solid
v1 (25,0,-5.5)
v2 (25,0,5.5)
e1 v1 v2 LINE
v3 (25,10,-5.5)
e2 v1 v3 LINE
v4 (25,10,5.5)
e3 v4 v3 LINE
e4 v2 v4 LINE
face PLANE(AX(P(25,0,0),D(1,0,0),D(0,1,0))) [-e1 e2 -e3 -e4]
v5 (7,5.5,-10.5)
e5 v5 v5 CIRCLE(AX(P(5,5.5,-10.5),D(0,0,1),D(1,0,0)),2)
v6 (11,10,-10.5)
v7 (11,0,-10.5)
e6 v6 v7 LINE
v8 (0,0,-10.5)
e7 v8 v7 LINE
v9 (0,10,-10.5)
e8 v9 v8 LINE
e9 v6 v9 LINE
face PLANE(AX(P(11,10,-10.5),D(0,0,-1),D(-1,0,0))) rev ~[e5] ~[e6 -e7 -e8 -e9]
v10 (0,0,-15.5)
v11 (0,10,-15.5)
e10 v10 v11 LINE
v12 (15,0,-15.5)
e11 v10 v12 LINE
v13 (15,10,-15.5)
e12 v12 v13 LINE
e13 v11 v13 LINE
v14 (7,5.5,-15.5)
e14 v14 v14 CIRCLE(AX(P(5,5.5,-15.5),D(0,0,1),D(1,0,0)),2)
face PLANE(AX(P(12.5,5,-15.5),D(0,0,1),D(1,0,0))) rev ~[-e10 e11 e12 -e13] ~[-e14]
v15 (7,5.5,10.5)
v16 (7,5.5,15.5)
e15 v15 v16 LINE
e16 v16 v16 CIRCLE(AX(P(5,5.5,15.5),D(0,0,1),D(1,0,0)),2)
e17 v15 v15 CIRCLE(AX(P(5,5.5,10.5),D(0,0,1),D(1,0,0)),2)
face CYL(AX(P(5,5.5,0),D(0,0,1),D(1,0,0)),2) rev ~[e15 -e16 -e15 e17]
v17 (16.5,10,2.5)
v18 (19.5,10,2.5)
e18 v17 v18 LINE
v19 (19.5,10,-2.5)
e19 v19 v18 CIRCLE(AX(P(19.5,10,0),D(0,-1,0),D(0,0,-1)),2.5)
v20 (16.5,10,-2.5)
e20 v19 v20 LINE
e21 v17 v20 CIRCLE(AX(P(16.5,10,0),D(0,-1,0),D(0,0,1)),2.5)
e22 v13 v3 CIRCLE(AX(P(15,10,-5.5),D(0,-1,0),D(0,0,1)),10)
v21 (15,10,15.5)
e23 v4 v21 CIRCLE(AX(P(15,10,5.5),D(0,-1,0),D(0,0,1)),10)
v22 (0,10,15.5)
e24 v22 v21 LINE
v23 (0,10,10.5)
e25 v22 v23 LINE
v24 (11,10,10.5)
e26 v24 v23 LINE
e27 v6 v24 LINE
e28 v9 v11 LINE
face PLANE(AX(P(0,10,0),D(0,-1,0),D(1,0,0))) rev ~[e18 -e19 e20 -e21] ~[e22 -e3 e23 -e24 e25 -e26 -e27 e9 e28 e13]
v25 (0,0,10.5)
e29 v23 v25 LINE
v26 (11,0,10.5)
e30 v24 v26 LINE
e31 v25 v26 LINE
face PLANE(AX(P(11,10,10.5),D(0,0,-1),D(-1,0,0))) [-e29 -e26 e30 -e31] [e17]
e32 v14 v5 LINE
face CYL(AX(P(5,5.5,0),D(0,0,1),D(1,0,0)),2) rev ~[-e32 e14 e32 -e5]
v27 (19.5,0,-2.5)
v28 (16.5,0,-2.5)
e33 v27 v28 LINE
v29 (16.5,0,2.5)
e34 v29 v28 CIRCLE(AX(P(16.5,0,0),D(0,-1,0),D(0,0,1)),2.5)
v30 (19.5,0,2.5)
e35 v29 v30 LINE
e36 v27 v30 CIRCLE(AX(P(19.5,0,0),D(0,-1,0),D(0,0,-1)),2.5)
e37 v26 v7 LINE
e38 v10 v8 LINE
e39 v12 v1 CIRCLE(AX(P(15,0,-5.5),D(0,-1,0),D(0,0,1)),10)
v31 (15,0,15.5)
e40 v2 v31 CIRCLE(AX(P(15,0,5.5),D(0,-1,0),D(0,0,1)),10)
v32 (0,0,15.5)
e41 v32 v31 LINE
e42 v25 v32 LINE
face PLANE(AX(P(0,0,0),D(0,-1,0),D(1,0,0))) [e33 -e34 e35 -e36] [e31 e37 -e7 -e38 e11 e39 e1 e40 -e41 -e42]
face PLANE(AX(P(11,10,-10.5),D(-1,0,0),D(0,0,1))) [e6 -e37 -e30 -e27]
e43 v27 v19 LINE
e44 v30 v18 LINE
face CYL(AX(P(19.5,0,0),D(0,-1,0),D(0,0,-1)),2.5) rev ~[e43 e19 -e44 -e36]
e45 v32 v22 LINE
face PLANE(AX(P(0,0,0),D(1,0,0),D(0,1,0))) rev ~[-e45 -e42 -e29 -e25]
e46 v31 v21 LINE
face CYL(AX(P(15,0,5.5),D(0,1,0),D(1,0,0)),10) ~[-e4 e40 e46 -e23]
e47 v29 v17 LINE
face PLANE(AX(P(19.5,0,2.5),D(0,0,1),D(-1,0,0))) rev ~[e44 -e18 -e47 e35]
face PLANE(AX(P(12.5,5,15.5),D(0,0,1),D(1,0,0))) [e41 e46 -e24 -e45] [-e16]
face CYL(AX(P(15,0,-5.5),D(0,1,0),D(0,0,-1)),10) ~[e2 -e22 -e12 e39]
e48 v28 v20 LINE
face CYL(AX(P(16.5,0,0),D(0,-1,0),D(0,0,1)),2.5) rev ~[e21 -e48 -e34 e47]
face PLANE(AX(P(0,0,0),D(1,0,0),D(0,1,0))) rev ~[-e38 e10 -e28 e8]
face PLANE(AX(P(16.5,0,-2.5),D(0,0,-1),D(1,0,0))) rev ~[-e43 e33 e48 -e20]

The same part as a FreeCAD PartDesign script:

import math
import FreeCAD as App
import Part
import Sketcher
from FreeCAD import Vector


def edges_at(feature, points):
    """Names of the edges that pass closest to the given points."""
    edges = feature.Shape.Edges
    near = lambda p: min(range(len(edges)), key=lambda i: edges[i].distToShape(Part.Vertex(*p))[0])
    return sorted({f"Edge{near(p) + 1}" for p in points})


def add_polygon(sketch, points):
    """Adds a closed chain of lines whose ends are joined by coincident constraints."""
    first, n = sketch.GeometryCount, len(points)
    for a, b in zip(points, points[1:] + points[:1]):
        sketch.addGeometry(Part.LineSegment(App.Vector(*a, 0), App.Vector(*b, 0)), False)
    for i in range(n):
        sketch.addConstraint(Sketcher.Constraint("Coincident", first + i, 2, first + (i + 1) % n, 1))

doc = App.newDocument("Part")
params = doc.addObject("Spreadsheet::Sheet", "Params")
for row, (alias, value) in enumerate([
    ("sketch1_width", "25 mm"),
    ("sketch1_height", "10 mm"),
    ("pad1_length", "31 mm"),
    ("sketch2_width", "11 mm"),
    ("sketch2_height", "21 mm"),
    ("sketch3_diameter", "5 mm"),
    ("fillet_radius", "10 mm"),
    ("sketch4_diameter", "4 mm"),
    ("pocket3_length", "32 mm"),
    ("sketch5_radius", "2.5 mm"),
    ("sketch5_width", "3 mm"),
    ("pocket4_length", "25 mm"),
], start=1):
    params.set(f"A{row}", alias)
    params.set(f"B{row}", "=" + value)
    params.setAlias(f"B{row}", alias)

body = doc.addObject("PartDesign::Body", "Body")

sketch1 = doc.addObject("Sketcher::SketchObject", "Sketch")
body.addObject(sketch1)
sketch1.AttachmentSupport = (doc.XY_Plane, [""])
sketch1.MapMode = "FlatFace"
add_polygon(sketch1, [(0, 10), (0, 0), (25, 0), (25, 10)])
sketch1.addConstraint(Sketcher.Constraint("Vertical", 0))
sketch1.addConstraint(Sketcher.Constraint("Horizontal", 1))
sketch1.addConstraint(Sketcher.Constraint("Vertical", 2))
sketch1.addConstraint(Sketcher.Constraint("Horizontal", 3))
sketch1.addConstraint(Sketcher.Constraint("Coincident", 0, 2, -1, 1))
sketch1.addConstraint(Sketcher.Constraint("DistanceX", 1, 1, 1, 2, 25.0))
sketch1.addConstraint(Sketcher.Constraint("DistanceY", 0, 2, 0, 1, 10.0))
sketch1.setExpression("Constraints[9]", "Params.sketch1_width")
sketch1.setExpression("Constraints[10]", "Params.sketch1_height")
pad1 = doc.addObject("PartDesign::Pad", "Pad")
body.addObject(pad1)
pad1.Profile = sketch1
pad1.setExpression("Length", "Params.pad1_length")
pad1.Midplane = True

sketch2 = doc.addObject("Sketcher::SketchObject", "Sketch001")
body.addObject(sketch2)
sketch2.AttachmentSupport = (doc.XZ_Plane, [""])
sketch2.MapMode = "FlatFace"
sketch2.AttachmentOffset = App.Placement(Vector(0, 0, -10), App.Rotation())
add_polygon(sketch2, [(11, 10), (11, -10), (0, -10), (0, 10)])
sketch2.addConstraint(Sketcher.Constraint("Vertical", 0))
sketch2.addConstraint(Sketcher.Constraint("Horizontal", 1))
sketch2.addConstraint(Sketcher.Constraint("Vertical", 2))
sketch2.addConstraint(Sketcher.Constraint("Horizontal", 3))
sketch2.addConstraint(Sketcher.Constraint("Symmetric", 1, 2, 2, 2, -1, 1))
sketch2.addConstraint(Sketcher.Constraint("DistanceX", 1, 2, 1, 1, 11.0))
sketch2.addConstraint(Sketcher.Constraint("DistanceY", 0, 2, 0, 1, 21.0))
sketch2.setExpression("Constraints[9]", "Params.sketch2_width")
sketch2.setExpression("Constraints[10]", "Params.sketch2_height")
pocket1 = doc.addObject("PartDesign::Pocket", "Pocket")
body.addObject(pocket1)
pocket1.Profile = sketch2
pocket1.Type = "ThroughAll"
pocket1.Reversed = True

sketch3 = doc.addObject("Sketcher::SketchObject", "Sketch002")
body.addObject(sketch3)
sketch3.AttachmentSupport = (doc.XZ_Plane, [""])
sketch3.MapMode = "FlatFace"
sketch3.AttachmentOffset = App.Placement(Vector(0, 0, -10), App.Rotation())
sketch3.addGeometry(Part.Circle(Vector(18, 0, 0), Vector(0, 0, 1), 2.5), False)
sketch3.addConstraint(Sketcher.Constraint("PointOnObject", 0, 3, -1))
sketch3.addConstraint(Sketcher.Constraint("Diameter", 0, 5.0))
sketch3.addConstraint(Sketcher.Constraint("DistanceX", -1, 1, 0, 3, 18.0))
sketch3.setExpression("Constraints[1]", "Params.sketch3_diameter")
pocket2 = doc.addObject("PartDesign::Pocket", "Pocket001")
body.addObject(pocket2)
pocket2.Profile = sketch3
pocket2.Type = "ThroughAll"
pocket2.Reversed = True
doc.recompute()

fillet = doc.addObject("PartDesign::Fillet", "Fillet")
body.addObject(fillet)
fillet.Base = (pocket2, edges_at(pocket2, [(25, 5, -15.5), (25, 5, 15.5)]))
fillet.setExpression("Radius", "Params.fillet_radius")

sketch4 = doc.addObject("Sketcher::SketchObject", "Sketch003")
body.addObject(sketch4)
sketch4.AttachmentSupport = (doc.XY_Plane, [""])
sketch4.MapMode = "FlatFace"
sketch4.addGeometry(Part.Circle(Vector(5, 5.5, 0), Vector(0, 0, 1), 2), False)
sketch4.addConstraint(Sketcher.Constraint("Diameter", 0, 4.0))
sketch4.addConstraint(Sketcher.Constraint("DistanceX", -1, 1, 0, 3, 5.0))
sketch4.addConstraint(Sketcher.Constraint("DistanceY", -1, 1, 0, 3, 5.5))
sketch4.setExpression("Constraints[0]", "Params.sketch4_diameter")
pocket3 = doc.addObject("PartDesign::Pocket", "Pocket002")
body.addObject(pocket3)
pocket3.Profile = sketch4
pocket3.setExpression("Length", "Params.pocket3_length")
pocket3.Midplane = True

sketch5 = doc.addObject("Sketcher::SketchObject", "Sketch004")
body.addObject(sketch5)
sketch5.AttachmentSupport = (doc.XZ_Plane, [""])
sketch5.MapMode = "FlatFace"
sketch5.addGeometry(Part.LineSegment(Vector(19.5, 2.5, 0), Vector(16.5, 2.5, 0)), False)
sketch5.addGeometry(Part.ArcOfCircle(Part.Circle(Vector(16.5, 0, 0), Vector(0, 0, 1), 2.5), math.radians(90), math.radians(270)), False)
sketch5.addGeometry(Part.LineSegment(Vector(16.5, -2.5, 0), Vector(19.5, -2.5, 0)), False)
sketch5.addGeometry(Part.ArcOfCircle(Part.Circle(Vector(19.5, 0, 0), Vector(0, 0, 1), 2.5), math.radians(-90), math.radians(90)), False)
sketch5.addConstraint(Sketcher.Constraint("Tangent", 0, 2, 1, 1))
sketch5.addConstraint(Sketcher.Constraint("Tangent", 1, 2, 2, 1))
sketch5.addConstraint(Sketcher.Constraint("Tangent", 2, 2, 3, 1))
sketch5.addConstraint(Sketcher.Constraint("Tangent", 3, 2, 0, 1))
sketch5.addConstraint(Sketcher.Constraint("Horizontal", 0))
sketch5.addConstraint(Sketcher.Constraint("Horizontal", 2))
sketch5.addConstraint(Sketcher.Constraint("PointOnObject", 1, 3, -1))
sketch5.addConstraint(Sketcher.Constraint("Radius", 1, 2.5))
sketch5.addConstraint(Sketcher.Constraint("DistanceX", 0, 2, 0, 1, 3.0))
sketch5.addConstraint(Sketcher.Constraint("DistanceX", -1, 1, 1, 3, 16.5))
sketch5.setExpression("Constraints[7]", "Params.sketch5_radius")
sketch5.setExpression("Constraints[8]", "Params.sketch5_width")
pocket4 = doc.addObject("PartDesign::Pocket", "Pocket003")
body.addObject(pocket4)
pocket4.Profile = sketch5
pocket4.setExpression("Length", "Params.pocket4_length")

doc.recompute()
